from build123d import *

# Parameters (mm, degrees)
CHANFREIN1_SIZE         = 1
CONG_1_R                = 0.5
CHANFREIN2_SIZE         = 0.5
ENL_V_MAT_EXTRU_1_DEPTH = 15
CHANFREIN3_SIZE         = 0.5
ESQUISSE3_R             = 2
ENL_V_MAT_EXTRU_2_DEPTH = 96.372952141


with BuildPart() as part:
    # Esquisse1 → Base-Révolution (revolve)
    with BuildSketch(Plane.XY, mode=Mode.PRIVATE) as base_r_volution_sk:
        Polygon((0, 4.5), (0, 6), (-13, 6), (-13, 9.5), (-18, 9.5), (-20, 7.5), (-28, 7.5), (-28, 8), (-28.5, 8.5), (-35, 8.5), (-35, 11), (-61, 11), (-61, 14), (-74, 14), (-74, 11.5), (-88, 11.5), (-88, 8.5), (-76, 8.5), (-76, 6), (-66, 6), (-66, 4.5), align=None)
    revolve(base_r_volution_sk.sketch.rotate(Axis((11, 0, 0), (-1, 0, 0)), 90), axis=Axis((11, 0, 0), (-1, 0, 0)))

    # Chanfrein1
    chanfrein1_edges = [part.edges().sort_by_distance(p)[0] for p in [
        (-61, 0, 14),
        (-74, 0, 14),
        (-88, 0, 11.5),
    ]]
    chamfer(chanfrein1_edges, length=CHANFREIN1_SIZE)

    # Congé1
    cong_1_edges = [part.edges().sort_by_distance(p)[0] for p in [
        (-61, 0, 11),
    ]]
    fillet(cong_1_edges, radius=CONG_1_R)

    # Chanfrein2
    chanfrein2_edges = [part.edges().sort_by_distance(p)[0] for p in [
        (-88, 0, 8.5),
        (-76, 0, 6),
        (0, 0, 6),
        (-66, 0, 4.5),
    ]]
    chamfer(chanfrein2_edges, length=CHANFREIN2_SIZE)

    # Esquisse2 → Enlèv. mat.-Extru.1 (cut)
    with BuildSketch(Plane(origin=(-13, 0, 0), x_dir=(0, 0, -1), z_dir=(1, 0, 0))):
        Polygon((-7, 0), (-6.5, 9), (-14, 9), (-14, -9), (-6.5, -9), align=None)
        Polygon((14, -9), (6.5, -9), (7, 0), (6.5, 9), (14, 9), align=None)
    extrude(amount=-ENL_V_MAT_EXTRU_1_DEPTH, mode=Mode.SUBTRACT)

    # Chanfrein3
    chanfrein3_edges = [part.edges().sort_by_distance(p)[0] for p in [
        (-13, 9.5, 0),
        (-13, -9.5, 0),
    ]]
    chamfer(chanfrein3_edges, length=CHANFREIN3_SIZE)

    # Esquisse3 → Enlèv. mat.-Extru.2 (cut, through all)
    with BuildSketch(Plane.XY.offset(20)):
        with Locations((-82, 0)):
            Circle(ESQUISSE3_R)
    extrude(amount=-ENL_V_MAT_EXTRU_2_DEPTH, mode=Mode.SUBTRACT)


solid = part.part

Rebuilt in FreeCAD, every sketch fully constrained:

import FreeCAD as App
import Part
import Sketcher

V = App.Vector
Q = App.Units.Quantity


def edges_at(feature, points):
    """Names of the edges that pass closest to the given points."""
    edges = feature.Shape.Edges
    near = lambda p: min(range(len(edges)), key=lambda i: edges[i].distToShape(Part.Vertex(*p))[0])
    return sorted({f"Edge{near(p) + 1}" for p in points})

doc = App.newDocument("Part")
body = doc.addObject("PartDesign::Body", "Body")

# Sketch on XY plane
sketch1 = body.newObject("Sketcher::SketchObject", "Sketch")
sketch1.AttachmentSupport = (doc.getObject("XY_Plane"), [""])
sketch1.MapMode = "FlatFace"
sketch1.addGeometry(Part.LineSegment(V(0, 4.5, 0), V(0, 6, 0)), False)
sketch1.addGeometry(Part.LineSegment(V(0, 6, 0), V(-13, 6, 0)), False)
sketch1.addGeometry(Part.LineSegment(V(-13, 6, 0), V(-13, 9.5, 0)), False)
sketch1.addGeometry(Part.LineSegment(V(-13, 9.5, 0), V(-18, 9.5, 0)), False)
sketch1.addGeometry(Part.LineSegment(V(-18, 9.5, 0), V(-20, 7.5, 0)), False)
sketch1.addGeometry(Part.LineSegment(V(-20, 7.5, 0), V(-28, 7.5, 0)), False)
sketch1.addGeometry(Part.LineSegment(V(-28, 7.5, 0), V(-28, 8, 0)), False)
sketch1.addGeometry(Part.LineSegment(V(-28, 8, 0), V(-28.5, 8.5, 0)), False)
sketch1.addGeometry(Part.LineSegment(V(-28.5, 8.5, 0), V(-35, 8.5, 0)), False)
sketch1.addGeometry(Part.LineSegment(V(-35, 8.5, 0), V(-35, 11, 0)), False)
sketch1.addGeometry(Part.LineSegment(V(-35, 11, 0), V(-61, 11, 0)), False)
sketch1.addGeometry(Part.LineSegment(V(-61, 11, 0), V(-61, 14, 0)), False)
sketch1.addGeometry(Part.LineSegment(V(-61, 14, 0), V(-74, 14, 0)), False)
sketch1.addGeometry(Part.LineSegment(V(-74, 14, 0), V(-74, 11.5, 0)), False)
sketch1.addGeometry(Part.LineSegment(V(-74, 11.5, 0), V(-88, 11.5, 0)), False)
sketch1.addGeometry(Part.LineSegment(V(-88, 11.5, 0), V(-88, 8.5, 0)), False)
sketch1.addGeometry(Part.LineSegment(V(-88, 8.5, 0), V(-76, 8.5, 0)), False)
sketch1.addGeometry(Part.LineSegment(V(-76, 8.5, 0), V(-76, 6, 0)), False)
sketch1.addGeometry(Part.LineSegment(V(-76, 6, 0), V(-66, 6, 0)), False)
sketch1.addGeometry(Part.LineSegment(V(-66, 6, 0), V(-66, 4.5, 0)), False)
sketch1.addGeometry(Part.LineSegment(V(-66, 4.5, 0), V(0, 4.5, 0)), False)
sketch1.addConstraint(Sketcher.Constraint("Coincident", 0, 2, 1, 1))
sketch1.addConstraint(Sketcher.Constraint("Coincident", 1, 2, 2, 1))
sketch1.addConstraint(Sketcher.Constraint("Coincident", 2, 2, 3, 1))
sketch1.addConstraint(Sketcher.Constraint("Coincident", 3, 2, 4, 1))
sketch1.addConstraint(Sketcher.Constraint("Coincident", 4, 2, 5, 1))
sketch1.addConstraint(Sketcher.Constraint("Coincident", 5, 2, 6, 1))
sketch1.addConstraint(Sketcher.Constraint("Coincident", 6, 2, 7, 1))
sketch1.addConstraint(Sketcher.Constraint("Coincident", 7, 2, 8, 1))
sketch1.addConstraint(Sketcher.Constraint("Coincident", 8, 2, 9, 1))
sketch1.addConstraint(Sketcher.Constraint("Coincident", 9, 2, 10, 1))
sketch1.addConstraint(Sketcher.Constraint("Coincident", 10, 2, 11, 1))
sketch1.addConstraint(Sketcher.Constraint("Coincident", 11, 2, 12, 1))
sketch1.addConstraint(Sketcher.Constraint("Coincident", 12, 2, 13, 1))
sketch1.addConstraint(Sketcher.Constraint("Coincident", 13, 2, 14, 1))
sketch1.addConstraint(Sketcher.Constraint("Coincident", 14, 2, 15, 1))
sketch1.addConstraint(Sketcher.Constraint("Coincident", 15, 2, 16, 1))
sketch1.addConstraint(Sketcher.Constraint("Coincident", 16, 2, 17, 1))
sketch1.addConstraint(Sketcher.Constraint("Coincident", 17, 2, 18, 1))
sketch1.addConstraint(Sketcher.Constraint("Coincident", 18, 2, 19, 1))
sketch1.addConstraint(Sketcher.Constraint("Coincident", 19, 2, 20, 1))
sketch1.addConstraint(Sketcher.Constraint("Coincident", 20, 2, 0, 1))
sketch1.addConstraint(Sketcher.Constraint("Vertical", 0))
sketch1.addConstraint(Sketcher.Constraint("Horizontal", 1))
sketch1.addConstraint(Sketcher.Constraint("Vertical", 2))
sketch1.addConstraint(Sketcher.Constraint("Horizontal", 3))
sketch1.addConstraint(Sketcher.Constraint("Horizontal", 5))
sketch1.addConstraint(Sketcher.Constraint("Vertical", 6))
sketch1.addConstraint(Sketcher.Constraint("Horizontal", 8))
sketch1.addConstraint(Sketcher.Constraint("Vertical", 9))
sketch1.addConstraint(Sketcher.Constraint("Horizontal", 10))
sketch1.addConstraint(Sketcher.Constraint("Vertical", 11))
sketch1.addConstraint(Sketcher.Constraint("Horizontal", 12))
sketch1.addConstraint(Sketcher.Constraint("Vertical", 13))
sketch1.addConstraint(Sketcher.Constraint("Horizontal", 14))
sketch1.addConstraint(Sketcher.Constraint("Vertical", 15))
sketch1.addConstraint(Sketcher.Constraint("Horizontal", 16))
sketch1.addConstraint(Sketcher.Constraint("Vertical", 17))
sketch1.addConstraint(Sketcher.Constraint("Horizontal", 18))
sketch1.addConstraint(Sketcher.Constraint("Vertical", 19))
sketch1.addConstraint(Sketcher.Constraint("Horizontal", 20))
sketch1.addConstraint(Sketcher.Constraint("PointOnObject", 0, 2, -2))
sketch1.addConstraint(Sketcher.Constraint("Perpendicular", 4, 7))
sketch1.addConstraint(Sketcher.Constraint("Horizontal", 8, 2, 15, 2))
sketch1.addConstraint(Sketcher.Constraint("Horizontal", 1, 2, 17, 2))
sketch1.addConstraint(Sketcher.Constraint("Equal", 1, 12))
sketch1.addConstraint(Sketcher.Constraint("Equal", 9, 13))
sketch1.addConstraint(Sketcher.Constraint("Equal", 13, 17))
sketch1.addConstraint(Sketcher.Constraint("DistanceX", 1, 2, 1, 1, Q("13 mm")))
sketch1.addConstraint(Sketcher.Constraint("DistanceX", 3, 2, 3, 1, Q("5 mm")))
sketch1.addConstraint(Sketcher.Constraint("DistanceX", 5, 2, 5, 1, Q("8 mm")))
sketch1.addConstraint(Sketcher.Constraint("DistanceX", 10, 2, 10, 1, Q("26 mm")))
sketch1.addConstraint(Sketcher.Constraint("DistanceX", 14, 2, 14, 1, Q("14 mm")))
sketch1.addConstraint(Sketcher.Constraint("DistanceX", 16, 1, 16, 2, Q("12 mm")))
sketch1.addConstraint(Sketcher.Constraint("DistanceX", 18, 1, 18, 2, Q("10 mm")))
sketch1.addConstraint(Sketcher.Constraint("DistanceX", 20, 1, 20, 2, Q("66 mm")))
sketch1.addConstraint(Sketcher.Constraint("DistanceY", 11, 1, 11, 2, Q("3 mm")))
sketch1.addConstraint(Sketcher.Constraint("Angle", 4, Q("-135 deg")))
sketch1.addConstraint(Sketcher.Constraint("DistanceX", 8, 2, 8, 1, Q("6.5 mm")))
sketch1.addConstraint(Sketcher.Constraint("DistanceY", 0, 1, 0, 2, Q("1.5 mm")))
sketch1.addConstraint(Sketcher.Constraint("DistanceY", 2, 1, 2, 2, Q("3.5 mm")))
sketch1.addConstraint(Sketcher.Constraint("DistanceY", 6, 1, 6, 2, Q("0.5 mm")))
sketch1.addConstraint(Sketcher.Constraint("DistanceY", 9, 1, 9, 2, Q("2.5 mm")))
sketch1.addConstraint(Sketcher.Constraint("DistanceY", -1, 1, 0, 2, Q("6 mm")))
revolution = body.newObject("PartDesign::Revolution", "Revolution")
revolution.Profile = sketch1
revolution.ReferenceAxis = (sketch1, ["H_Axis"])
revolution.Angle = 360
doc.recompute()

chamfer = body.newObject("PartDesign::Chamfer", "Chamfer")
chamfer.Base = (revolution, edges_at(revolution, [(-61, 0, 14), (-74, 0, 14), (-88, 0, 11.5)]))
chamfer.Size = 1
doc.recompute()

fillet = body.newObject("PartDesign::Fillet", "Fillet")
fillet.Base = (chamfer, edges_at(chamfer, [(-61, 0, 11)]))
fillet.Radius = 0.5
doc.recompute()

chamfer2 = body.newObject("PartDesign::Chamfer", "Chamfer001")
chamfer2.Base = (fillet, edges_at(fillet, [
    (-88, 0, 8.5),
    (-76, 0, 6),
    (0, 0, 6),
    (-66, 0, 4.5),
]))
chamfer2.Size = 0.5

# Sketch on YZ plane
sketch2 = body.newObject("Sketcher::SketchObject", "Sketch001")
sketch2.AttachmentSupport = (doc.getObject("YZ_Plane"), [""])
sketch2.MapMode = "FlatFace"
sketch2.AttachmentOffset = App.Placement(V(0, 0, -13), App.Rotation())
sketch2.addGeometry(Part.LineSegment(V(0, 7, 0), V(9, 6.5, 0)), False)
sketch2.addGeometry(Part.LineSegment(V(9, 6.5, 0), V(9, 14, 0)), False)
sketch2.addGeometry(Part.LineSegment(V(9, 14, 0), V(-9, 14, 0)), False)
sketch2.addGeometry(Part.LineSegment(V(-9, 14, 0), V(-9, 6.5, 0)), False)
sketch2.addGeometry(Part.LineSegment(V(-9, 6.5, 0), V(0, 7, 0)), False)
sketch2.addGeometry(Part.LineSegment(V(-9, -6.5, 0), V(-9, -14, 0)), False)
sketch2.addGeometry(Part.LineSegment(V(-9, -14, 0), V(9, -14, 0)), False)
sketch2.addGeometry(Part.LineSegment(V(9, -14, 0), V(9, -6.5, 0)), False)
sketch2.addGeometry(Part.LineSegment(V(9, -6.5, 0), V(0, -7, 0)), False)
sketch2.addGeometry(Part.LineSegment(V(0, -7, 0), V(-9, -6.5, 0)), False)
sketch2.addConstraint(Sketcher.Constraint("Coincident", 0, 2, 1, 1))
sketch2.addConstraint(Sketcher.Constraint("Coincident", 1, 2, 2, 1))
sketch2.addConstraint(Sketcher.Constraint("Coincident", 2, 2, 3, 1))
sketch2.addConstraint(Sketcher.Constraint("Coincident", 3, 2, 4, 1))
sketch2.addConstraint(Sketcher.Constraint("Coincident", 4, 2, 0, 1))
sketch2.addConstraint(Sketcher.Constraint("Coincident", 5, 2, 6, 1))
sketch2.addConstraint(Sketcher.Constraint("Coincident", 6, 2, 7, 1))
sketch2.addConstraint(Sketcher.Constraint("Coincident", 7, 2, 8, 1))
sketch2.addConstraint(Sketcher.Constraint("Coincident", 8, 2, 9, 1))
sketch2.addConstraint(Sketcher.Constraint("Coincident", 9, 2, 5, 1))
sketch2.addConstraint(Sketcher.Constraint("Vertical", 1))
sketch2.addConstraint(Sketcher.Constraint("Horizontal", 2))
sketch2.addConstraint(Sketcher.Constraint("Vertical", 3))
sketch2.addConstraint(Sketcher.Constraint("Vertical", 5))
sketch2.addConstraint(Sketcher.Constraint("Horizontal", 6))
sketch2.addConstraint(Sketcher.Constraint("Vertical", 7))
sketch2.addConstraint(Sketcher.Constraint("Symmetric", 1, 2, 5, 2, -1, 1))
sketch2.addConstraint(Sketcher.Constraint("Symmetric", 3, 2, 7, 2, -1, 1))
sketch2.addConstraint(Sketcher.Constraint("Symmetric", 4, 2, 8, 2, -1, 1))
sketch2.addConstraint(Sketcher.Constraint("Symmetric", 0, 2, 3, 2, -2))
sketch2.addConstraint(Sketcher.Constraint("PointOnObject", 4, 2, -2))
sketch2.addConstraint(Sketcher.Constraint("Parallel", 0, 9))
sketch2.addConstraint(Sketcher.Constraint("DistanceX", 2, 2, 2, 1, Q("18 mm")))
sketch2.addConstraint(Sketcher.Constraint("DistanceY", 1, 1, 1, 2, Q("7.5 mm")))
sketch2.addConstraint(Sketcher.Constraint("DistanceY", -1, 1, 1, 2, Q("14 mm")))
sketch2.addConstraint(Sketcher.Constraint("DistanceY", -1, 1, 4, 2, Q("7 mm")))
pocket1 = body.newObject("PartDesign::Pocket", "Pocket")
pocket1.Profile = sketch2
pocket1.Length = 15
doc.recompute()

chamfer3 = body.newObject("PartDesign::Chamfer", "Chamfer002")
chamfer3.Base = (pocket1, edges_at(pocket1, [(-13, 9.5, 0), (-13, -9.5, 0)]))
chamfer3.Size = 0.5

# Sketch on XY plane
sketch3 = body.newObject("Sketcher::SketchObject", "Sketch002")
sketch3.AttachmentSupport = (doc.getObject("XY_Plane"), [""])
sketch3.MapMode = "FlatFace"
sketch3.AttachmentOffset = App.Placement(V(0, 0, 20), App.Rotation())
sketch3.addGeometry(Part.Circle(V(-82, 0, 0), V(0, 0, 1), 2), False)
sketch3.addConstraint(Sketcher.Constraint("PointOnObject", 0, 3, -1))
sketch3.addConstraint(Sketcher.Constraint("Diameter", 0, Q("4 mm")))
sketch3.addConstraint(Sketcher.Constraint("DistanceX", 0, 3, -1, 1, Q("82 mm")))
pocket2 = body.newObject("PartDesign::Pocket", "Pocket001")
pocket2.Profile = sketch3
pocket2.Type = "ThroughAll"

doc.recompute()
